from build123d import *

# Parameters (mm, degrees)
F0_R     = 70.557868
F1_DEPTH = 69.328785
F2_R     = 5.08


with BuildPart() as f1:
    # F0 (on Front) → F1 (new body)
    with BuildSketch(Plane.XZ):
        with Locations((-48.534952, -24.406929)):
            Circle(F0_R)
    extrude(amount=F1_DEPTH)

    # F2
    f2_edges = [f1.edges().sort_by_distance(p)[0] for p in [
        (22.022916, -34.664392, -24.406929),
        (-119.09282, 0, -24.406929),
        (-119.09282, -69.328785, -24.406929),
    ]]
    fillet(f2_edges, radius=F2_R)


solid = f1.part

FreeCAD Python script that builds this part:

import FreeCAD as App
import Part
import Sketcher
Q = App.Units.Quantity

doc = App.newDocument("Part")
body = doc.addObject("PartDesign::Body", "Body")

# Sketch on XZ plane
sketch1 = doc.addObject("Sketcher::SketchObject", "Sketch")
body.addObject(sketch1)
sketch1.AttachmentSupport = (doc.XZ_Plane, [""])
sketch1.MapMode = "FlatFace"
sketch1.addGeometry(Part.Circle(App.Vector(-49, -24, 0), App.Vector(0, 0, 1), 71), False)
sketch1.addConstraint(Sketcher.Constraint("Diameter", 0, 141.115736))
sketch1.addConstraint(Sketcher.Constraint("DistanceX", 0, 3, -1, 1, 48.534952))
sketch1.addConstraint(Sketcher.Constraint("DistanceY", 0, 3, -1, 1, 24.406929))
pad1 = doc.addObject("PartDesign::Pad", "Pad")
body.addObject(pad1)
pad1.Profile = sketch1
pad1.Length = 69.328785
doc.recompute()

fillet = doc.addObject("PartDesign::Fillet", "Fillet")
body.addObject(fillet)
fillet.Base = (pad1, ["Edge1"])
fillet.UseAllEdges = True
fillet.Radius = Q("0.2 in")

doc.recompute()
